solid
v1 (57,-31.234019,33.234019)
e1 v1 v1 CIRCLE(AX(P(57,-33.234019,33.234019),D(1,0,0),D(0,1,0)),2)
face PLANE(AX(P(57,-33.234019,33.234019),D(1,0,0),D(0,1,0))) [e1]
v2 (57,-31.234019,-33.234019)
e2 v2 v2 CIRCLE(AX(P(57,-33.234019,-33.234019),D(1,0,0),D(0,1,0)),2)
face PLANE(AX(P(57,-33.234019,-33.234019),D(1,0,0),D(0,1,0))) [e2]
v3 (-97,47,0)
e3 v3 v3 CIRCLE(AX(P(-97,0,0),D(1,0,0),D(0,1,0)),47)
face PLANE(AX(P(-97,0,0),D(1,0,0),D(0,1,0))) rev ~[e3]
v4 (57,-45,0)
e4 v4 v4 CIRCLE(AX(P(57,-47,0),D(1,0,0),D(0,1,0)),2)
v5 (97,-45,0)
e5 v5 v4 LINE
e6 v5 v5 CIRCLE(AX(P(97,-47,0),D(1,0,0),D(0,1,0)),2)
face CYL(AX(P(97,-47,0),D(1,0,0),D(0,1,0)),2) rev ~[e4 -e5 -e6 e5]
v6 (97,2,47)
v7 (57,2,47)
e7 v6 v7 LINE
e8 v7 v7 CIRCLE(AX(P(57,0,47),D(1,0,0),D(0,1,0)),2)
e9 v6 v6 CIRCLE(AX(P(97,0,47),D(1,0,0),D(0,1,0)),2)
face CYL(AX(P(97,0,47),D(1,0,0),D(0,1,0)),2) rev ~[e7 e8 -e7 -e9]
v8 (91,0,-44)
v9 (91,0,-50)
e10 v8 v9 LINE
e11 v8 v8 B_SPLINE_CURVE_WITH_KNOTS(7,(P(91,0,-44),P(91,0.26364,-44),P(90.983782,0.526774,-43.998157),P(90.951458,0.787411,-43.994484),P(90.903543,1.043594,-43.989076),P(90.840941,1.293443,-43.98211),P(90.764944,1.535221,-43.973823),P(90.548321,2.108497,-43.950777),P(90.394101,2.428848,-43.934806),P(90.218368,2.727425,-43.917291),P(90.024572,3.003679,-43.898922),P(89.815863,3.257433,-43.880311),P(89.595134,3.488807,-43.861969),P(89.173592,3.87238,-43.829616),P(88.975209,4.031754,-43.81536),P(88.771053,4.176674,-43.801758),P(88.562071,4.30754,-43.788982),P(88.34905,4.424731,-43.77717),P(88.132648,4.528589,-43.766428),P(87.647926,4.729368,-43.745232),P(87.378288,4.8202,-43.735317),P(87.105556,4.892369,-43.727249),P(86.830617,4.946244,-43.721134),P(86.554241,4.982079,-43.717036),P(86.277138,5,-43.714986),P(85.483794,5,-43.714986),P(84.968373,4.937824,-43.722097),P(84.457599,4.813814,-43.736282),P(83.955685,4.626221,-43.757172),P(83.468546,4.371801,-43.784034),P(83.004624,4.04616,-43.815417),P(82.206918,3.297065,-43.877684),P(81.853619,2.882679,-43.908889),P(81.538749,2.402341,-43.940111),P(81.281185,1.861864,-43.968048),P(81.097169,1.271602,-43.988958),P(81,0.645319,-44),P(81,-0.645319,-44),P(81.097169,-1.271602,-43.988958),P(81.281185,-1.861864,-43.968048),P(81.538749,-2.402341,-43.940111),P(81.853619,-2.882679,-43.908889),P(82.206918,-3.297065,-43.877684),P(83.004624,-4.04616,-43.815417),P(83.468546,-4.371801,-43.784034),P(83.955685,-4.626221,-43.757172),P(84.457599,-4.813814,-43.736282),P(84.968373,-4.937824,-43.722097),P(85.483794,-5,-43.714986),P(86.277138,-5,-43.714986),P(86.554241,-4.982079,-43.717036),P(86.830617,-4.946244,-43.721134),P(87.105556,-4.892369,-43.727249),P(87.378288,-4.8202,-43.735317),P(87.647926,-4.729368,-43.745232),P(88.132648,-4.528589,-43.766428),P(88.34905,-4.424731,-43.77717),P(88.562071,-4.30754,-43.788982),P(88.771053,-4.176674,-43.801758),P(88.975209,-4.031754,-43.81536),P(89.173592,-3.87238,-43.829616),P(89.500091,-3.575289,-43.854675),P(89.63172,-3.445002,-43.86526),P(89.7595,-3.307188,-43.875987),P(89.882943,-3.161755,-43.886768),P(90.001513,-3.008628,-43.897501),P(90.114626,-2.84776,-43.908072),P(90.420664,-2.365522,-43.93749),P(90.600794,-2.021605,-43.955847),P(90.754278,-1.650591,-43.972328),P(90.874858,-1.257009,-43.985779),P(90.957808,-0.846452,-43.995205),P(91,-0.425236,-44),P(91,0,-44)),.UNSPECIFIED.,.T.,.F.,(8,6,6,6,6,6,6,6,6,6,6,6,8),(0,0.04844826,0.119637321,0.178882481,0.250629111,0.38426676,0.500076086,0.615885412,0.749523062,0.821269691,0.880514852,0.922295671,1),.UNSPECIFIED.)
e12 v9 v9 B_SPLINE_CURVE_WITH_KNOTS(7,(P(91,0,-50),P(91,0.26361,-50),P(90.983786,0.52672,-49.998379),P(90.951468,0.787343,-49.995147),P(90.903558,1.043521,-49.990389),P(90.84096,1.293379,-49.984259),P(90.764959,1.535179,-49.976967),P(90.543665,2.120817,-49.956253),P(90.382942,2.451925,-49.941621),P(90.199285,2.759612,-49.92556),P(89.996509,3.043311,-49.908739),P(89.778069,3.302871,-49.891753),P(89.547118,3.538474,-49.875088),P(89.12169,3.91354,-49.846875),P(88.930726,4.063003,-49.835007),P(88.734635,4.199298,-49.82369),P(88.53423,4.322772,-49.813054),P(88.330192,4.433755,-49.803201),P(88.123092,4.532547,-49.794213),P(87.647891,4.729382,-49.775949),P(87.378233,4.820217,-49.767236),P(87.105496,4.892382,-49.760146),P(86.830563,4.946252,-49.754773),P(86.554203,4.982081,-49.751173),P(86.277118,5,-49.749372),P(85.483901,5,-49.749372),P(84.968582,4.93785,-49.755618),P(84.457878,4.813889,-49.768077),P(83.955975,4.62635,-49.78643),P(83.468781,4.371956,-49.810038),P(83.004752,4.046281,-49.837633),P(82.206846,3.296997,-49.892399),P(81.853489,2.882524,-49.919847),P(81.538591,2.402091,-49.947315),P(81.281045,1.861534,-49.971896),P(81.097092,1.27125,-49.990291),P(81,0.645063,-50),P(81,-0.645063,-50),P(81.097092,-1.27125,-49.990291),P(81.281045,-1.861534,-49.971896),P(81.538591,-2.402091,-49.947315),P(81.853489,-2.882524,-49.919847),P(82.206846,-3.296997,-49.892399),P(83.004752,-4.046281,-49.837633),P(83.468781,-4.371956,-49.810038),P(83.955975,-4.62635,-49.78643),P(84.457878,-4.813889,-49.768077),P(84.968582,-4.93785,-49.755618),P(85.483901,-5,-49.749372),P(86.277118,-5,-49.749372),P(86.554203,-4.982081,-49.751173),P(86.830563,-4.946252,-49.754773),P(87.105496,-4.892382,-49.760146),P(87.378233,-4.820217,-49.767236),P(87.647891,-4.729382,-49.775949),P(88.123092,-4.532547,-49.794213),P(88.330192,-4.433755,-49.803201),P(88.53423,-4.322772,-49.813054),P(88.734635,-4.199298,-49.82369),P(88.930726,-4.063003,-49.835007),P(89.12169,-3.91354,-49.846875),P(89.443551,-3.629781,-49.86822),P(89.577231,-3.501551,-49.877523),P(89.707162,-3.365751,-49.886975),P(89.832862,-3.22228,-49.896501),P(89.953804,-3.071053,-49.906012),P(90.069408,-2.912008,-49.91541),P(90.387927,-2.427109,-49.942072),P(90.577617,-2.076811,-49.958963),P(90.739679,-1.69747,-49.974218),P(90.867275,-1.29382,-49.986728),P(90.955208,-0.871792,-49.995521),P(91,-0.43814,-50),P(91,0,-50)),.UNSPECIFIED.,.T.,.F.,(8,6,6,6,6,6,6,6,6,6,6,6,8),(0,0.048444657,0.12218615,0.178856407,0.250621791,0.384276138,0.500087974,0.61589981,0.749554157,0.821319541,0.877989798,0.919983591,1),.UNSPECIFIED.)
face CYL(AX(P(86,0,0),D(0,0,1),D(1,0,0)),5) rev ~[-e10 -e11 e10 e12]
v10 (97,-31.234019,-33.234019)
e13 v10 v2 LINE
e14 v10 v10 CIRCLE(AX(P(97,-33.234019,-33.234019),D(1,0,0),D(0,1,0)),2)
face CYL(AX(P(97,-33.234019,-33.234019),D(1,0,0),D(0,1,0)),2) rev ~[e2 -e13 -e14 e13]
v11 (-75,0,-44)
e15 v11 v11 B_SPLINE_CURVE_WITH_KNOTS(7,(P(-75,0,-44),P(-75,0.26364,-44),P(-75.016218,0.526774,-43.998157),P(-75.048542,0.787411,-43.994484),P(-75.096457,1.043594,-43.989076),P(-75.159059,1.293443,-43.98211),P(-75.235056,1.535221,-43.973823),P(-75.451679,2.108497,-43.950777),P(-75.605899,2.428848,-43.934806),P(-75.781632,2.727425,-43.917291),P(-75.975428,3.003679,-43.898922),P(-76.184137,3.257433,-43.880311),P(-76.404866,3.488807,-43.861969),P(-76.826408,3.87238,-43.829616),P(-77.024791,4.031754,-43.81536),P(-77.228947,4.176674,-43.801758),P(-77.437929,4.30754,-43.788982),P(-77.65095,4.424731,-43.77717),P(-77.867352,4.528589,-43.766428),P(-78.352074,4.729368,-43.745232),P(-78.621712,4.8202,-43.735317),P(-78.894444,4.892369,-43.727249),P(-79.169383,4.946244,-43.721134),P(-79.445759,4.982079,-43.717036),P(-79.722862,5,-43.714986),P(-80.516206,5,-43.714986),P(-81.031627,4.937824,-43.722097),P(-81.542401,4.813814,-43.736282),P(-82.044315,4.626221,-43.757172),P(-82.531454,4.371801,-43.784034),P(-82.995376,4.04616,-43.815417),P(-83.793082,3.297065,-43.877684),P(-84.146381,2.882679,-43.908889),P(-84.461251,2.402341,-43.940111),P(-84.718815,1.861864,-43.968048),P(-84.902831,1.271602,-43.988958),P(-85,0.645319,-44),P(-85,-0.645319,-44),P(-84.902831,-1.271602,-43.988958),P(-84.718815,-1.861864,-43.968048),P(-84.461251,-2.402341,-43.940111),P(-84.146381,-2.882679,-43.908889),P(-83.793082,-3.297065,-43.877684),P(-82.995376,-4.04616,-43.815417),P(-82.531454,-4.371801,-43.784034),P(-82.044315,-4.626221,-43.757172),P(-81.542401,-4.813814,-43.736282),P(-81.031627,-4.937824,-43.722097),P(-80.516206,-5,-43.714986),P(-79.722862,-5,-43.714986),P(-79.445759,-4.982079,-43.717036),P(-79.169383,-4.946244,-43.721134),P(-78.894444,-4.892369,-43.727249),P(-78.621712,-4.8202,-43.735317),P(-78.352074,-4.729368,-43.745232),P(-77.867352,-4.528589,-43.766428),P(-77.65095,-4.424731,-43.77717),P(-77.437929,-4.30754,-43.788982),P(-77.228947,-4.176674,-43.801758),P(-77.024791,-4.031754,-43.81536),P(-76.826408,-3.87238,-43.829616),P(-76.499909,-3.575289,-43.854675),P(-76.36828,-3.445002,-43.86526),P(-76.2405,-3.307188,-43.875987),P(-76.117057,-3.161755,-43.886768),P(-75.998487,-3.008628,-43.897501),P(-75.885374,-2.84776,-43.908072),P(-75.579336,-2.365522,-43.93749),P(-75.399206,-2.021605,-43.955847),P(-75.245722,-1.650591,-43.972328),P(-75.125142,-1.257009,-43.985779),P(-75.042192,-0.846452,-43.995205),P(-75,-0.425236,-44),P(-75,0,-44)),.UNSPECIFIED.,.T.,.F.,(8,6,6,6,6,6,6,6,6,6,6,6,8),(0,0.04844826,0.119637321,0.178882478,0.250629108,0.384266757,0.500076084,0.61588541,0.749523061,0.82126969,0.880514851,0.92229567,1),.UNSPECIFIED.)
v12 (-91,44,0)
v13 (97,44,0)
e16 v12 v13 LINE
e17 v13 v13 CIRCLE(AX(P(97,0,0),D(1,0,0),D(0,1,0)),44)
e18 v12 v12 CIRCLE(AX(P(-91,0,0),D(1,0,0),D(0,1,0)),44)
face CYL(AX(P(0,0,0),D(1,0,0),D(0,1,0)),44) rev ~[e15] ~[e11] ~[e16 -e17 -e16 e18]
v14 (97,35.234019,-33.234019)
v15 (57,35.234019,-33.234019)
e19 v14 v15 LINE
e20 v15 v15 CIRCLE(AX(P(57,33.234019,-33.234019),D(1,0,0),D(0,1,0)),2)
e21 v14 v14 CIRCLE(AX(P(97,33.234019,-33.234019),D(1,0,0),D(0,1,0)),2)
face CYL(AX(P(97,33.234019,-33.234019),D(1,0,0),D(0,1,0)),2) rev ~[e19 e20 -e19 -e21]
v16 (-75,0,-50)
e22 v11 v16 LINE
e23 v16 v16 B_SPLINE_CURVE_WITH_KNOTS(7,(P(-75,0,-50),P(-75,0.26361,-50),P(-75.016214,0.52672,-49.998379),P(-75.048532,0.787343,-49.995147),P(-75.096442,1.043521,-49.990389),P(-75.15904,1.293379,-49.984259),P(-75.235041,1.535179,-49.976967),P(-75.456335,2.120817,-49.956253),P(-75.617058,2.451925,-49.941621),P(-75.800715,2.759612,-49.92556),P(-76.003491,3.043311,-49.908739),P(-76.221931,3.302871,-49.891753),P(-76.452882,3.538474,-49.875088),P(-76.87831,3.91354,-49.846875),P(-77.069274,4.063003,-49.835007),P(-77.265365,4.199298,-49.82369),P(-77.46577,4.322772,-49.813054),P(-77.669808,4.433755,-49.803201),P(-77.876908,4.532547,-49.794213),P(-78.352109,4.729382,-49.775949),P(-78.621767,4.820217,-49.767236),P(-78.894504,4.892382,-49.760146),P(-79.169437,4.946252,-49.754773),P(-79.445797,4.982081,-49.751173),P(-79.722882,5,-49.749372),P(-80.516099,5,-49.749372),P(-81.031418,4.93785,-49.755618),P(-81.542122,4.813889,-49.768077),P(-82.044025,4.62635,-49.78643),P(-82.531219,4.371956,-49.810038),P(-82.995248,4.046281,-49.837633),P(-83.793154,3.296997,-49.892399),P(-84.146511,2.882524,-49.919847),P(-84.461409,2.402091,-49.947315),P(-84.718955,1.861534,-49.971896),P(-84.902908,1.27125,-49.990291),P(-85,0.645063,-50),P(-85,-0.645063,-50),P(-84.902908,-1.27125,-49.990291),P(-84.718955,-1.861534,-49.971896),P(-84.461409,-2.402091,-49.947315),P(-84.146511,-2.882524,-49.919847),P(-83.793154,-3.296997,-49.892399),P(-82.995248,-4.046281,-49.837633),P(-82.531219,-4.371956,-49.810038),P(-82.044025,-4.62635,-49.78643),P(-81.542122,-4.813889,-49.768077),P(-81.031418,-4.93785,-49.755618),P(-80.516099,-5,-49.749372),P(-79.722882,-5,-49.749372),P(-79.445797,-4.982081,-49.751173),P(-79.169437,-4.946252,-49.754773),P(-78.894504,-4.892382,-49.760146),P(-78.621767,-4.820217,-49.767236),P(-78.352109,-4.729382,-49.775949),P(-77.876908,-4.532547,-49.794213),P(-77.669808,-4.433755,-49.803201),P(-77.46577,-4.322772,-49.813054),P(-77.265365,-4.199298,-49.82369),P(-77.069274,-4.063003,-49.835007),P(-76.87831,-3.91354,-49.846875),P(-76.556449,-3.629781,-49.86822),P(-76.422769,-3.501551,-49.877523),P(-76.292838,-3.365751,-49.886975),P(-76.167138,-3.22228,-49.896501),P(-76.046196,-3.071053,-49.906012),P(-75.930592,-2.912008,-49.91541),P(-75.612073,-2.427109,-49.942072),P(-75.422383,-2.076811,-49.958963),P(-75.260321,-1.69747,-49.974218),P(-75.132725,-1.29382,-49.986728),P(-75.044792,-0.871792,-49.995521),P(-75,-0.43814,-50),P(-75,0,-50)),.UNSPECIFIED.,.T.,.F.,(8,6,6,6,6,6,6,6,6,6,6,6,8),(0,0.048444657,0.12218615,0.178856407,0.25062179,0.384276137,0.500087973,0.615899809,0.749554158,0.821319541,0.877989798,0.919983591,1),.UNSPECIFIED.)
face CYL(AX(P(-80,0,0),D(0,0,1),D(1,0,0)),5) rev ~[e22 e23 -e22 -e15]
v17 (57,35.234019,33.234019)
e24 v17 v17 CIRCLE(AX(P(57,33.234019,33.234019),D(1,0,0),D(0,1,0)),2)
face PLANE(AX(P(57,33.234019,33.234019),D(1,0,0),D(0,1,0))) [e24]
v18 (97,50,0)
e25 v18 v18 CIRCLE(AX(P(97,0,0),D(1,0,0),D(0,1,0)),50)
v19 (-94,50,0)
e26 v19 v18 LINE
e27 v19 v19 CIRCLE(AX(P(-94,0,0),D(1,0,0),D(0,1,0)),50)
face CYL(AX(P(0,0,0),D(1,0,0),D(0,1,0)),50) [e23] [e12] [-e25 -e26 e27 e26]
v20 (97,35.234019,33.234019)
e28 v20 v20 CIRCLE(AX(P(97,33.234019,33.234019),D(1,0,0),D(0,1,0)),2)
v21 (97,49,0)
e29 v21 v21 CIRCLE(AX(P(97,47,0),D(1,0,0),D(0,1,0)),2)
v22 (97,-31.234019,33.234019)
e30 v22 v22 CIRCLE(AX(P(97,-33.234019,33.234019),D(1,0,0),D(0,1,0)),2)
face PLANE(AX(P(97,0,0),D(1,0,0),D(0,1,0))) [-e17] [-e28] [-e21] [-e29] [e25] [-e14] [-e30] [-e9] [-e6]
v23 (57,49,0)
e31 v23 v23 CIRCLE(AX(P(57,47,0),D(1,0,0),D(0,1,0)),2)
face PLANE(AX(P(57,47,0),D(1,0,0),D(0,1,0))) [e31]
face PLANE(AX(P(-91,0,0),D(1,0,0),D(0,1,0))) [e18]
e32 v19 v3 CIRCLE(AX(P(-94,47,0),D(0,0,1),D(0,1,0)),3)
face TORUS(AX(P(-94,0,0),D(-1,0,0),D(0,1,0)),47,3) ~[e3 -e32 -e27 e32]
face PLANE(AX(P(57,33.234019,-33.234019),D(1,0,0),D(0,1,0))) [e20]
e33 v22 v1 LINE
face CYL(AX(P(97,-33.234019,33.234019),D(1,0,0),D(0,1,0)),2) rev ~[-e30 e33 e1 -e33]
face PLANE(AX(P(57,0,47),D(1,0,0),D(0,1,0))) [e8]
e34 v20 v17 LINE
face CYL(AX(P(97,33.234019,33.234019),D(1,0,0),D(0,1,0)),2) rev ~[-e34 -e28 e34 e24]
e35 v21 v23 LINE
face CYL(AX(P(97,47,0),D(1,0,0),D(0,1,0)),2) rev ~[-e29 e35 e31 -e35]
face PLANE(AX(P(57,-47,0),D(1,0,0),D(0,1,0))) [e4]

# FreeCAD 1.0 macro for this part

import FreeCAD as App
import Part
import Sketcher
from FreeCAD import Vector


def edges_at(feature, points):
    """Names of the edges that pass closest to the given points."""
    edges = feature.Shape.Edges
    near = lambda p: min(range(len(edges)), key=lambda i: edges[i].distToShape(Part.Vertex(*p))[0])
    return sorted({f"Edge{near(p) + 1}" for p in points})


def faces_at(feature, points):
    """Names of the faces that lie closest to the given points."""
    faces = feature.Shape.Faces
    near = lambda p: min(range(len(faces)), key=lambda i: faces[i].distToShape(Part.Vertex(*p))[0])
    return sorted({f"Face{near(p) + 1}" for p in points})

doc = App.newDocument("Part")
body = doc.addObject("PartDesign::Body", "Body")

# Sketch on YZ plane
sketch1 = body.newObject("Sketcher::SketchObject", "Sketch")
sketch1.AttachmentSupport = (doc.getObject("YZ_Plane"), [""])
sketch1.MapMode = "FlatFace"
sketch1.addGeometry(Part.Circle(Vector(0, 0, 0), Vector(0, 0, 1), 50), False)
sketch1.addConstraint(Sketcher.Constraint("Coincident", 0, 3, -1, 1))
sketch1.addConstraint(Sketcher.Constraint("Diameter", 0, 100.0))
pad1 = body.newObject("PartDesign::Pad", "Pad")
pad1.Profile = sketch1
pad1.Length = 194
pad1.Midplane = True
doc.recompute()

thickness = body.newObject("PartDesign::Thickness", "Thickness")
thickness.Base = (pad1, faces_at(pad1, [(97, 0, 0)]))
thickness.Value = 6
thickness.Reversed = True
thickness.Join = "Arc"

# Sketch on YZ plane
sketch2 = body.newObject("Sketcher::SketchObject", "Sketch001")
sketch2.AttachmentSupport = (doc.getObject("YZ_Plane"), [""])
sketch2.MapMode = "FlatFace"
sketch2.AttachmentOffset = App.Placement(Vector(0, 0, 97), App.Rotation())
sketch2.addGeometry(Part.Circle(Vector(-47, 0, 0), Vector(0, 0, 1), 2), False)
sketch2.addGeometry(Part.Circle(Vector(-33.2, 33.2, 0), Vector(0, 0, 1), 2), False)
sketch2.addGeometry(Part.Circle(Vector(0, 47, 0), Vector(0, 0, 1), 2), False)
sketch2.addGeometry(Part.Circle(Vector(33.2, 33.2, 0), Vector(0, 0, 1), 2), False)
sketch2.addGeometry(Part.Circle(Vector(47, 0, 0), Vector(0, 0, 1), 2), False)
sketch2.addGeometry(Part.Circle(Vector(-33.2, -33.2, 0), Vector(0, 0, 1), 2), False)
sketch2.addGeometry(Part.Circle(Vector(33.2, -33.2, 0), Vector(0, 0, 1), 2), False)
sketch2.addConstraint(Sketcher.Constraint("Equal", 0, 1))
sketch2.addConstraint(Sketcher.Constraint("Equal", 1, 2))
sketch2.addConstraint(Sketcher.Constraint("Equal", 2, 3))
sketch2.addConstraint(Sketcher.Constraint("Equal", 3, 4))
sketch2.addConstraint(Sketcher.Constraint("Equal", 4, 5))
sketch2.addConstraint(Sketcher.Constraint("Equal", 5, 6))
sketch2.addConstraint(Sketcher.Constraint("Symmetric", 0, 3, 4, 3, -1, 1))
sketch2.addConstraint(Sketcher.Constraint("Symmetric", 3, 3, 5, 3, -1, 1))
sketch2.addConstraint(Sketcher.Constraint("Symmetric", 1, 3, 6, 3, -1, 1))
sketch2.addConstraint(Sketcher.Constraint("Symmetric", 1, 3, 3, 3, -2))
sketch2.addConstraint(Sketcher.Constraint("PointOnObject", 0, 3, -1))
sketch2.addConstraint(Sketcher.Constraint("PointOnObject", 2, 3, -2))
sketch2.addConstraint(Sketcher.Constraint("Diameter", 0, 4.0))
sketch2.addConstraint(Sketcher.Constraint("DistanceX", 0, 3, -1, 1, 47.0))
sketch2.addConstraint(Sketcher.Constraint("DistanceY", -1, 1, 2, 3, 47.0))
sketch2.addConstraint(Sketcher.Constraint("DistanceX", 1, 3, -1, 1, 33.234019))
sketch2.addConstraint(Sketcher.Constraint("DistanceY", -1, 1, 1, 3, 33.234019))
pocket1 = body.newObject("PartDesign::Pocket", "Pocket")
pocket1.Profile = sketch2
pocket1.Length = 40
doc.recompute()

fillet = body.newObject("PartDesign::Fillet", "Fillet")
fillet.Base = (pocket1, edges_at(pocket1, [(-97, -50, 0)]))
fillet.Radius = 3

# Sketch on XY plane
sketch3 = body.newObject("Sketcher::SketchObject", "Sketch002")
sketch3.AttachmentSupport = (doc.getObject("XY_Plane"), [""])
sketch3.MapMode = "FlatFace"
sketch3.addGeometry(Part.Circle(Vector(-80, 0, 0), Vector(0, 0, 1), 5), False)
sketch3.addGeometry(Part.Circle(Vector(86, 0, 0), Vector(0, 0, 1), 5), False)
sketch3.addConstraint(Sketcher.Constraint("Equal", 0, 1))
sketch3.addConstraint(Sketcher.Constraint("PointOnObject", 0, 3, -1))
sketch3.addConstraint(Sketcher.Constraint("PointOnObject", 1, 3, -1))
sketch3.addConstraint(Sketcher.Constraint("Diameter", 0, 10.0))
sketch3.addConstraint(Sketcher.Constraint("DistanceX", 0, 3, -1, 1, 80.0))
sketch3.addConstraint(Sketcher.Constraint("DistanceX", -1, 1, 1, 3, 86.0))
pocket2 = body.newObject("PartDesign::Pocket", "Pocket001")
pocket2.Profile = sketch3
pocket2.Type = "ThroughAll"

doc.recompute()
